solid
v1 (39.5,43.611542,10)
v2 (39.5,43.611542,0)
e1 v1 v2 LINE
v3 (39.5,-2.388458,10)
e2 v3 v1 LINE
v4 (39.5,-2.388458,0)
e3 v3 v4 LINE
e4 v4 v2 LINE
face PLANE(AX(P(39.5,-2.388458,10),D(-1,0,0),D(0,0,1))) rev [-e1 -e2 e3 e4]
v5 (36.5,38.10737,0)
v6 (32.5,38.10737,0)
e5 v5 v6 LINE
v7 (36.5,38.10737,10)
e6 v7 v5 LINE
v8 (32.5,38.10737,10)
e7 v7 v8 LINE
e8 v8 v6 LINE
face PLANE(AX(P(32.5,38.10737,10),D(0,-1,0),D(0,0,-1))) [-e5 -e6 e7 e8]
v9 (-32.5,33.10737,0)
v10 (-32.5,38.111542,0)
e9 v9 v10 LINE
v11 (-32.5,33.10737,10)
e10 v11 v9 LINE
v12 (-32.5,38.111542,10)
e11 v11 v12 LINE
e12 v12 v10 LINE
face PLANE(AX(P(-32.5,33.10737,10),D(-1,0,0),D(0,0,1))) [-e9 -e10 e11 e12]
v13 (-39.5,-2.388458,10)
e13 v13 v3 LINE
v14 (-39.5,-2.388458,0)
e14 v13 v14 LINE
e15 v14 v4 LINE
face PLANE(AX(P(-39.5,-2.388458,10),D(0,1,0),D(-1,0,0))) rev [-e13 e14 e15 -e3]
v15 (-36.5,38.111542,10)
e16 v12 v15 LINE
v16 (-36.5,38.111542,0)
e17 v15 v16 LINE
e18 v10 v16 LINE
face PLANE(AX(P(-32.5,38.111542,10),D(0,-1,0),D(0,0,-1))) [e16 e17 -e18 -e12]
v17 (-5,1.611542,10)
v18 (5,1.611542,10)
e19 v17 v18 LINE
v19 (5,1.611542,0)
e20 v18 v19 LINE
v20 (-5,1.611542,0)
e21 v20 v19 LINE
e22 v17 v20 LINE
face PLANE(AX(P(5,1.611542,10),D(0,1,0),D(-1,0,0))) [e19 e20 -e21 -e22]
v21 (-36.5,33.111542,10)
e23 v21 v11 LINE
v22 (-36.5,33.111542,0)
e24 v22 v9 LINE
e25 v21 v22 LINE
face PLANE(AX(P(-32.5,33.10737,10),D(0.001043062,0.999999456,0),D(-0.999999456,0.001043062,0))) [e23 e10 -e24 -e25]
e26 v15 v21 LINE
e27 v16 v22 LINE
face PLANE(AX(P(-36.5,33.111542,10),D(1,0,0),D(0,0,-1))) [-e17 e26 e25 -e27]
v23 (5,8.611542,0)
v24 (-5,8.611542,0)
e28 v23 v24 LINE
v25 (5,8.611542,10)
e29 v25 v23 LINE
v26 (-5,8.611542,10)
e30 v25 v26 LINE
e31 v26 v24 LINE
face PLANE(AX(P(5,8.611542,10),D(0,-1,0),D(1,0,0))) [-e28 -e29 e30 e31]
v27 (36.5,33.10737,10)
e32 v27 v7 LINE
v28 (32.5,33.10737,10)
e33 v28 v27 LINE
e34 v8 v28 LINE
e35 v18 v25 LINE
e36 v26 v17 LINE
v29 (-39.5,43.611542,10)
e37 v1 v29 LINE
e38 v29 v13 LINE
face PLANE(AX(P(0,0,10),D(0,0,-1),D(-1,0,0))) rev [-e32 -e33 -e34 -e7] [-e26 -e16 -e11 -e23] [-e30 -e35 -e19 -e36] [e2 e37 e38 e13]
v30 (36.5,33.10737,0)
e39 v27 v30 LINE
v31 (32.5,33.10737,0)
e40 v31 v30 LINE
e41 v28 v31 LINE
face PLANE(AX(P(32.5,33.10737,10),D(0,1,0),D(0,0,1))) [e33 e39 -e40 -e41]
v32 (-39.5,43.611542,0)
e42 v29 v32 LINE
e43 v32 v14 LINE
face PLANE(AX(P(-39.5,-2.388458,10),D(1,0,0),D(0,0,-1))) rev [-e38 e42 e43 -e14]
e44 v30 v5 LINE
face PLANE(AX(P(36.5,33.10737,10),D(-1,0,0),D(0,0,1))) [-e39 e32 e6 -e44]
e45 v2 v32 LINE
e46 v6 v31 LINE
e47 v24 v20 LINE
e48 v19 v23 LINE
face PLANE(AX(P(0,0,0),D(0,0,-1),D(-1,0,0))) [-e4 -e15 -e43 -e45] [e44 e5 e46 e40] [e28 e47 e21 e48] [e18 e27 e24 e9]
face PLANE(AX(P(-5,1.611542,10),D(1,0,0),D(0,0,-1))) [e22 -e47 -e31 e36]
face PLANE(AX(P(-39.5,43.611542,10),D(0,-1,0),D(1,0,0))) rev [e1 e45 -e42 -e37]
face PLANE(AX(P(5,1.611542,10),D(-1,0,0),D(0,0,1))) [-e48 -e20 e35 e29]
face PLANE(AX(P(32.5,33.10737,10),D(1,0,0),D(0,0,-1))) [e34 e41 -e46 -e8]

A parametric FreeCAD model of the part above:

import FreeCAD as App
import Part
import Sketcher
Q = App.Units.Quantity


def add_polygon(sketch, points):
    """Adds a closed chain of lines whose ends are joined by coincident constraints."""
    first, n = sketch.GeometryCount, len(points)
    for a, b in zip(points, points[1:] + points[:1]):
        sketch.addGeometry(Part.LineSegment(App.Vector(*a, 0), App.Vector(*b, 0)), False)
    for i in range(n):
        sketch.addConstraint(Sketcher.Constraint("Coincident", first + i, 2, first + (i + 1) % n, 1))

doc = App.newDocument("Part")
params = doc.addObject("Spreadsheet::Sheet", "Params")
for row, (alias, value) in enumerate([
    ("sketch1_width", "79 mm"),
    ("sketch1_width2", "10 mm"),
    ("sketch1_width3", "4 mm"),
    ("sketch1_height", "46 mm"),
    ("sketch1_height2", "7 mm"),
    ("pad1_length", "10 mm"),
], start=1):
    params.set(f"A{row}", alias)
    params.set(f"B{row}", "=" + value)
    params.setAlias(f"B{row}", alias)

body = doc.addObject("PartDesign::Body", "Body")

# Sketch on XY plane
sketch1 = body.newObject("Sketcher::SketchObject", "Sketch")
sketch1.AttachmentSupport = (doc.getObject("XY_Plane"), [""])
sketch1.MapMode = "FlatFace"
add_polygon(sketch1, [(-39.5, 43.6), (-39.5, -2.4), (39.5, -2.4), (39.5, 43.6)])  # lines 0-3
add_polygon(sketch1, [(5, 1.6), (-5, 1.6), (-5, 8.6), (5, 8.6)])  # lines 4-7
add_polygon(sketch1, [(-36.5, 38.1), (-32.5, 38.1), (-32.5, 33.1), (-36.5, 33.1)])  # lines 8-11
add_polygon(sketch1, [(36.5, 33.1), (32.5, 33.1), (32.5, 38.1), (36.5, 38.1)])  # lines 12-15
sketch1.addConstraint(Sketcher.Constraint("Vertical", 0))
sketch1.addConstraint(Sketcher.Constraint("Horizontal", 1))
sketch1.addConstraint(Sketcher.Constraint("Vertical", 2))
sketch1.addConstraint(Sketcher.Constraint("Horizontal", 3))
sketch1.addConstraint(Sketcher.Constraint("Horizontal", 4))
sketch1.addConstraint(Sketcher.Constraint("Vertical", 5))
sketch1.addConstraint(Sketcher.Constraint("Horizontal", 6))
sketch1.addConstraint(Sketcher.Constraint("Vertical", 7))
sketch1.addConstraint(Sketcher.Constraint("Horizontal", 8))
sketch1.addConstraint(Sketcher.Constraint("Vertical", 9))
sketch1.addConstraint(Sketcher.Constraint("Vertical", 11))
sketch1.addConstraint(Sketcher.Constraint("Horizontal", 12))
sketch1.addConstraint(Sketcher.Constraint("Vertical", 13))
sketch1.addConstraint(Sketcher.Constraint("Horizontal", 14))
sketch1.addConstraint(Sketcher.Constraint("Vertical", 15))
sketch1.addConstraint(Sketcher.Constraint("Symmetric", 9, 2, 12, 2, -2))
sketch1.addConstraint(Sketcher.Constraint("Equal", 8, 12))
sketch1.addConstraint(Sketcher.Constraint("Equal", 11, 13))
sketch1.addConstraint(Sketcher.Constraint("DistanceX", 1, 1, 1, 2, Q("79 mm")))
sketch1.addConstraint(Sketcher.Constraint("DistanceX", 4, 2, 4, 1, Q("10 mm")))
sketch1.addConstraint(Sketcher.Constraint("DistanceX", 8, 1, 8, 2, Q("4 mm")))
sketch1.addConstraint(Sketcher.Constraint("DistanceY", 0, 2, 0, 1, Q("46 mm")))
sketch1.addConstraint(Sketcher.Constraint("DistanceY", 5, 1, 5, 2, Q("7 mm")))
sketch1.addConstraint(Sketcher.Constraint("DistanceY", 11, 1, 11, 2, Q("5 mm")))
sketch1.addConstraint(Sketcher.Constraint("DistanceX", 4, 2, -1, 1, Q("5 mm")))
sketch1.addConstraint(Sketcher.Constraint("DistanceY", 0, 2, 4, 2, Q("4 mm")))
sketch1.addConstraint(Sketcher.Constraint("DistanceX", 3, 2, 8, 2, Q("7 mm")))
sketch1.addConstraint(Sketcher.Constraint("DistanceX", 12, 2, 2, 2, Q("7 mm")))
sketch1.addConstraint(Sketcher.Constraint("DistanceY", 8, 2, 3, 2, Q("5.5 mm")))
sketch1.addConstraint(Sketcher.Constraint("DistanceY", 9, 2, 9, 1, Q("5.004172 mm")))
sketch1.addConstraint(Sketcher.Constraint("DistanceY", -1, 1, 9, 2, Q("33.10737 mm")))
sketch1.setExpression("Constraints[34]", "Params.sketch1_width")
sketch1.setExpression("Constraints[35]", "Params.sketch1_width2")
sketch1.setExpression("Constraints[36]", "Params.sketch1_width3")
sketch1.setExpression("Constraints[37]", "Params.sketch1_height")
sketch1.setExpression("Constraints[38]", "Params.sketch1_height2")
pad1 = body.newObject("PartDesign::Pad", "Pad")
pad1.Profile = sketch1
pad1.setExpression("Length", "Params.pad1_length")

doc.recompute()
